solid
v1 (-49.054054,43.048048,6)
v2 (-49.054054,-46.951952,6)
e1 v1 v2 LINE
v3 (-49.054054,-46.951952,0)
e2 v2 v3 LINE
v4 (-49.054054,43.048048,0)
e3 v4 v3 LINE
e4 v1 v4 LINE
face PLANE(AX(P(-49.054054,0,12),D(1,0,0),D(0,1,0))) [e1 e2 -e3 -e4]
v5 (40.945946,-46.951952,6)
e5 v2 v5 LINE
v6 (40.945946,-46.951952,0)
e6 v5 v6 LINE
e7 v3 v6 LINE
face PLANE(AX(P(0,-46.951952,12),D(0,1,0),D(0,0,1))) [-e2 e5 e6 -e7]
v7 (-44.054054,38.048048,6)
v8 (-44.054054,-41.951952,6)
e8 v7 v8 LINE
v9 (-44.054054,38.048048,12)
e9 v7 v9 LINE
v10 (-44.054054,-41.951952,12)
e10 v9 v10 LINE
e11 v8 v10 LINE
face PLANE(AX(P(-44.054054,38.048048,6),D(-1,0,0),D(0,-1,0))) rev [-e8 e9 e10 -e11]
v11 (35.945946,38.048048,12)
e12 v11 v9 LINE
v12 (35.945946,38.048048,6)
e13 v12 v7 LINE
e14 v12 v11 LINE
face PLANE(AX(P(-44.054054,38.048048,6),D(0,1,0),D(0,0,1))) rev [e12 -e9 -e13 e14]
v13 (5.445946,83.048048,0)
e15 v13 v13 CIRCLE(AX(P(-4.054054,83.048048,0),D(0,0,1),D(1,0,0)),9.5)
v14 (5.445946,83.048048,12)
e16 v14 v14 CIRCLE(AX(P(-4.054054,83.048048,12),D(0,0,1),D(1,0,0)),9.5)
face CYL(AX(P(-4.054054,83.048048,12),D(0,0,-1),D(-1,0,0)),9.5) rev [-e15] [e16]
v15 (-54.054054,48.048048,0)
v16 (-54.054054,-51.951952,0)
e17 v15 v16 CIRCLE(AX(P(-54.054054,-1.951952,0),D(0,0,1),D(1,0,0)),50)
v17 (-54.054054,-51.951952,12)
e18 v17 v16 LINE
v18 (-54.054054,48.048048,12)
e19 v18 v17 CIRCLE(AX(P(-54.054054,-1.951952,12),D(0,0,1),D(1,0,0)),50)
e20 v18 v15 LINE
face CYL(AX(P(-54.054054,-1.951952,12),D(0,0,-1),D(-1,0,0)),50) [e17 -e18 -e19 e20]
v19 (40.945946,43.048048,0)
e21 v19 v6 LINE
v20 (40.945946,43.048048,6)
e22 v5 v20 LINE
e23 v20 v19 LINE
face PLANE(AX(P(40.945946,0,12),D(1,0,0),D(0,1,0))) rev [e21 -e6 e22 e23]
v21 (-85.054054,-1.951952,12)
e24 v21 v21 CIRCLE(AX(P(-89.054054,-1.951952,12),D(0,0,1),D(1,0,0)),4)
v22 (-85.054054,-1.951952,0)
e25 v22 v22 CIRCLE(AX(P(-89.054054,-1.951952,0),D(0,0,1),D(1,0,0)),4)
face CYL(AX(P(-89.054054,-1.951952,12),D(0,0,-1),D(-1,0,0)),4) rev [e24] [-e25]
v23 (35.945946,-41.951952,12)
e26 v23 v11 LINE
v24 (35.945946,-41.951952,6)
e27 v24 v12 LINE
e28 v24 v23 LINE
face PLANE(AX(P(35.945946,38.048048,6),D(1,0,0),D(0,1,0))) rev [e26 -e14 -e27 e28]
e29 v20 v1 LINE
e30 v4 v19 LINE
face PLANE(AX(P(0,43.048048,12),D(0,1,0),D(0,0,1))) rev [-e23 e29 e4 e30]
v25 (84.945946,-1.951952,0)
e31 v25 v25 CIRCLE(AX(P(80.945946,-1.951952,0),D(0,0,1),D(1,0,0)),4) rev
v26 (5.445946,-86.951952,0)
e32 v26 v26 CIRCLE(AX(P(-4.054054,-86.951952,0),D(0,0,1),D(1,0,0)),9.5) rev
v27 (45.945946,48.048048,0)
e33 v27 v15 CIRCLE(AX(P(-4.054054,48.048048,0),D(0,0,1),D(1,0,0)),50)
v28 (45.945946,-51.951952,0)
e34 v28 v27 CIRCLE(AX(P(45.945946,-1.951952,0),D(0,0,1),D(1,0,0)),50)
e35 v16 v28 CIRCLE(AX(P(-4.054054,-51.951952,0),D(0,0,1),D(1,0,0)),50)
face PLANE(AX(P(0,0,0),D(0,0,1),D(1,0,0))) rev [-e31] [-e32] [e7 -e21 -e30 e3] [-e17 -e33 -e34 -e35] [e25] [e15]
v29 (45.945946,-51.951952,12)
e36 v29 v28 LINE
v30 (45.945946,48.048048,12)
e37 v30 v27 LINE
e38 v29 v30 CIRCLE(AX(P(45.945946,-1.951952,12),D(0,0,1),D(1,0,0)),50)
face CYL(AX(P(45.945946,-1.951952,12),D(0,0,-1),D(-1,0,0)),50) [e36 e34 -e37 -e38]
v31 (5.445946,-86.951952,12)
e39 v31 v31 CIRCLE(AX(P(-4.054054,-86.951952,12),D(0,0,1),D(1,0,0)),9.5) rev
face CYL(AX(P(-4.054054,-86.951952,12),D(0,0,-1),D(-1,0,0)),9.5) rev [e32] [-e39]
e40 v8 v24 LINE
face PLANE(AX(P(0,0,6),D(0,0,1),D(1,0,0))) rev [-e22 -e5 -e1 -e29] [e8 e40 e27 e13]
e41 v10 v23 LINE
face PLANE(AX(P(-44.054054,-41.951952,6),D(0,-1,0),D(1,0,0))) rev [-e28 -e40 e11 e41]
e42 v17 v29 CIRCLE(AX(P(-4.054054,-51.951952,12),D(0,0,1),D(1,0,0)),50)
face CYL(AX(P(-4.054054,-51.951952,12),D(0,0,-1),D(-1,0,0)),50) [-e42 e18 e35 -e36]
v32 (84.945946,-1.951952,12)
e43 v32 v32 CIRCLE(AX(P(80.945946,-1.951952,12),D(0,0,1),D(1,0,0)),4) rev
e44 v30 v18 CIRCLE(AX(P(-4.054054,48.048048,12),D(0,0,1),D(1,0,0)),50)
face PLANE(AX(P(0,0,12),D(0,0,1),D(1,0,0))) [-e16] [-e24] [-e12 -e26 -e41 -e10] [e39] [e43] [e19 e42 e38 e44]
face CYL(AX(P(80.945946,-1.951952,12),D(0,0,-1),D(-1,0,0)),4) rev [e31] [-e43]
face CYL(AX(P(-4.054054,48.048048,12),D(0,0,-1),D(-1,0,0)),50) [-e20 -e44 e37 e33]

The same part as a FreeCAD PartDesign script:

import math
import FreeCAD as App
import Part
import Sketcher
from FreeCAD import Vector
Q = App.Units.Quantity


def add_polygon(sketch, points):
    """Adds a closed chain of lines whose ends are joined by coincident constraints."""
    first, n = sketch.GeometryCount, len(points)
    for a, b in zip(points, points[1:] + points[:1]):
        sketch.addGeometry(Part.LineSegment(App.Vector(*a, 0), App.Vector(*b, 0)), False)
    for i in range(n):
        sketch.addConstraint(Sketcher.Constraint("Coincident", first + i, 2, first + (i + 1) % n, 1))

doc = App.newDocument("Part")
body = doc.addObject("PartDesign::Body", "Body")

# Sketch on XY plane
sketch1 = doc.addObject("Sketcher::SketchObject", "Sketch")
body.addObject(sketch1)
sketch1.AttachmentSupport = (doc.XY_Plane, [""])
sketch1.MapMode = "FlatFace"
sketch1.addGeometry(Part.ArcOfCircle(Part.Circle(Vector(-4.1, 48, 0), Vector(0, 0, 1), 50), math.radians(0), math.radians(180)), False)  # 0
sketch1.addGeometry(Part.ArcOfCircle(Part.Circle(Vector(-54.1, -2, 0), Vector(0, 0, 1), 50), math.radians(90), math.radians(270)), False)  # 1
sketch1.addGeometry(Part.ArcOfCircle(Part.Circle(Vector(-4.1, -52, 0), Vector(0, 0, 1), 50), math.radians(180), math.radians(360)), False)  # 2
sketch1.addGeometry(Part.ArcOfCircle(Part.Circle(Vector(45.9, -2, 0), Vector(0, 0, 1), 50), math.radians(-90), math.radians(90)), False)  # 3
sketch1.addGeometry(Part.Circle(Vector(-4.1, -87, 0), Vector(0, 0, 1), 9.5), False)  # 4
sketch1.addGeometry(Part.Circle(Vector(-89.1, -2, 0), Vector(0, 0, 1), 4), False)  # 5
add_polygon(sketch1, [(40.9, -47), (-49.1, -47), (-49.1, 43), (40.9, 43)])  # lines 6-9
sketch1.addGeometry(Part.Circle(Vector(80.9, -2, 0), Vector(0, 0, 1), 4), False)  # 10
sketch1.addGeometry(Part.Circle(Vector(-4.1, 83, 0), Vector(0, 0, 1), 9.5), False)  # 11
sketch1.addConstraint([
    Sketcher.Constraint("Coincident", 0, 2, 1, 1),
    Sketcher.Constraint("Coincident", 1, 2, 2, 1),
    Sketcher.Constraint("Coincident", 2, 2, 3, 1),
    Sketcher.Constraint("Coincident", 3, 2, 0, 1),
    Sketcher.Constraint("Horizontal", 6),
    Sketcher.Constraint("Vertical", 7),
    Sketcher.Constraint("Horizontal", 8),
    Sketcher.Constraint("Vertical", 9),
    Sketcher.Constraint("Equal", 0, 1),
    Sketcher.Constraint("Equal", 1, 2),
    Sketcher.Constraint("Equal", 2, 3),
    Sketcher.Constraint("Equal", 5, 10),
    Sketcher.Constraint("Equal", 4, 11),
    Sketcher.Constraint("Horizontal", 1, 3, 3, 3),
    Sketcher.Constraint("Horizontal", 3, 3, 5, 3),
    Sketcher.Constraint("Horizontal", 5, 3, 10, 3),
    Sketcher.Constraint("Horizontal", 2, 3, 1, 2),
    Sketcher.Constraint("Vertical", 0, 3, 2, 3),
    Sketcher.Constraint("Vertical", 2, 3, 4, 3),
    Sketcher.Constraint("Vertical", 4, 3, 11, 3),
    Sketcher.Constraint("Vertical", 1, 3, 0, 2),
    Sketcher.Constraint("Vertical", 3, 3, 2, 2),
    Sketcher.Constraint("Equal", 8, 7),
    Sketcher.Constraint("Diameter", 4, Q("19 mm")),
    Sketcher.Constraint("Diameter", 5, Q("8 mm")),
    Sketcher.Constraint("Radius", 0, Q("50 mm")),
    Sketcher.Constraint("DistanceX", 6, 2, 6, 1, Q("90 mm")),
    Sketcher.Constraint("DistanceY", 1, 3, 0, 3, Q("50 mm")),
    Sketcher.Constraint("DistanceY", 4, 3, 2, 3, Q("35 mm")),
    Sketcher.Constraint("DistanceX", 5, 3, 1, 3, Q("35 mm")),
    Sketcher.Constraint("DistanceX", 3, 3, 10, 3, Q("35 mm")),
    Sketcher.Constraint("DistanceY", 0, 3, 11, 3, Q("35 mm")),
    Sketcher.Constraint("DistanceX", 1, 2, 6, 2, Q("5 mm")),
    Sketcher.Constraint("DistanceY", 1, 2, 6, 2, Q("5 mm")),
    Sketcher.Constraint("DistanceY", -1, 1, 0, 3, Q("48.048048 mm")),
    Sketcher.Constraint("DistanceX", 0, 3, -1, 1, Q("4.054054 mm")),
])
pad1 = doc.addObject("PartDesign::Pad", "Pad")
body.addObject(pad1)
pad1.Profile = sketch1
pad1.Length = 12

# Sketch on XY plane
sketch2 = doc.addObject("Sketcher::SketchObject", "Sketch001")
body.addObject(sketch2)
sketch2.AttachmentSupport = (doc.XY_Plane, [""])
sketch2.MapMode = "FlatFace"
sketch2.AttachmentOffset = App.Placement(Vector(0, 0, 12), App.Rotation())
add_polygon(sketch2, [(-49, 43), (-49, -47), (41, -47), (41, 43)])  # lines 0-3
add_polygon(sketch2, [(36, -42), (-44, -42), (-44, 38), (36, 38)])  # lines 4-7
sketch2.addConstraint([
    Sketcher.Constraint("Vertical", 0),
    Sketcher.Constraint("Horizontal", 1),
    Sketcher.Constraint("Vertical", 2),
    Sketcher.Constraint("Horizontal", 3),
    Sketcher.Constraint("Horizontal", 4),
    Sketcher.Constraint("Vertical", 5),
    Sketcher.Constraint("Horizontal", 6),
    Sketcher.Constraint("Vertical", 7),
    Sketcher.Constraint("Equal", 3, 0),
    Sketcher.Constraint("Equal", 6, 5),
    Sketcher.Constraint("DistanceX", 1, 1, 1, 2, Q("90 mm")),
    Sketcher.Constraint("DistanceX", 4, 2, 4, 1, Q("80 mm")),
    Sketcher.Constraint("DistanceX", 0, 2, 4, 2, Q("5 mm")),
    Sketcher.Constraint("DistanceY", 0, 2, 4, 2, Q("5 mm")),
    Sketcher.Constraint("DistanceY", 0, 2, -1, 1, Q("46.951952 mm")),
    Sketcher.Constraint("DistanceX", 0, 2, -1, 1, Q("49.054054 mm")),
])
pad2 = doc.addObject("PartDesign::Pad", "Pad001")
body.addObject(pad2)
pad2.Profile = sketch2
pad2.Length = 6
pad2.Reversed = True

doc.recompute()
